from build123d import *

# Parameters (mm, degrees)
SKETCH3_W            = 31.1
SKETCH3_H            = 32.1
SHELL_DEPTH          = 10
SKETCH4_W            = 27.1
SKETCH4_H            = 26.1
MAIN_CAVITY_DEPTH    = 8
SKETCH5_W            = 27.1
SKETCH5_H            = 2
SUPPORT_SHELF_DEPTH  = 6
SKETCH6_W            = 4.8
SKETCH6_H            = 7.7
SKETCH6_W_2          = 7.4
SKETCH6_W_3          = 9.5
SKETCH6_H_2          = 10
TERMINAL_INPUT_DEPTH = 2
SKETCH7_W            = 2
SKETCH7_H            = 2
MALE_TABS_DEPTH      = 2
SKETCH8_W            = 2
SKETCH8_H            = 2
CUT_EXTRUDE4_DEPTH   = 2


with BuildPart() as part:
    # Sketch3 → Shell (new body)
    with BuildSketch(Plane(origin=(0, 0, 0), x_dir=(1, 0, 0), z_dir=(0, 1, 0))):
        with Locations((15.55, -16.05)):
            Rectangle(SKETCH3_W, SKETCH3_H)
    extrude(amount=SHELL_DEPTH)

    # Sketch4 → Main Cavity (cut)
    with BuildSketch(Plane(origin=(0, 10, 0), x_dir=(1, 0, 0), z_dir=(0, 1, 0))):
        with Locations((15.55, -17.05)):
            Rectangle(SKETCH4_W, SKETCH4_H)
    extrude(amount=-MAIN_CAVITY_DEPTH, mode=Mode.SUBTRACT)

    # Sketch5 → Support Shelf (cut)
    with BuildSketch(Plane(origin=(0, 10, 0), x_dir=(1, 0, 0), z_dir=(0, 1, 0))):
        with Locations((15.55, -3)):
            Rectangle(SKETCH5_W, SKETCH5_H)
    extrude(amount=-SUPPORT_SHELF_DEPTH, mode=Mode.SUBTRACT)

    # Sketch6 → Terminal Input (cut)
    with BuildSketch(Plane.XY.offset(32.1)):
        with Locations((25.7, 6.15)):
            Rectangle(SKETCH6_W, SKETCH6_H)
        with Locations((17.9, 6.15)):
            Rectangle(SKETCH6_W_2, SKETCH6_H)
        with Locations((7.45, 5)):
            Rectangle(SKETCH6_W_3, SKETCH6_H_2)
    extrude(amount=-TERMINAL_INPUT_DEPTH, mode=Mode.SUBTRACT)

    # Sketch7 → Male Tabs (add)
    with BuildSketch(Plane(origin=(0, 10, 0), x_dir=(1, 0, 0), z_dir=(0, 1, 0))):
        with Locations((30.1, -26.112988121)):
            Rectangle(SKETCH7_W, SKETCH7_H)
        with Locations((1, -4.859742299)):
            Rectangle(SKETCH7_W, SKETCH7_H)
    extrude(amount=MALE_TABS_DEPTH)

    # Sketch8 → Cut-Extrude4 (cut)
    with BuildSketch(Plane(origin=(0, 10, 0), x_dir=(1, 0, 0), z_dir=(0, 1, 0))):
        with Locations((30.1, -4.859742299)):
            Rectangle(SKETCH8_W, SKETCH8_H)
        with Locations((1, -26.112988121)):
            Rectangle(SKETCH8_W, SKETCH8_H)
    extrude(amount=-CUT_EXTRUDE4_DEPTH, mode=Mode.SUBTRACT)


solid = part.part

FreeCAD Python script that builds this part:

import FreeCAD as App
import Part
import Sketcher

V = App.Vector
Q = App.Units.Quantity


def add_polygon(sketch, points):
    """Adds a closed chain of lines whose ends are joined by coincident constraints."""
    first, n = sketch.GeometryCount, len(points)
    for a, b in zip(points, points[1:] + points[:1]):
        sketch.addGeometry(Part.LineSegment(App.Vector(*a, 0), App.Vector(*b, 0)), False)
    for i in range(n):
        sketch.addConstraint(Sketcher.Constraint("Coincident", first + i, 2, first + (i + 1) % n, 1))

doc = App.newDocument("Part")
body = doc.addObject("PartDesign::Body", "Body")

# Sketch on XZ plane
sketch1 = doc.addObject("Sketcher::SketchObject", "Sketch")
body.addObject(sketch1)
sketch1.AttachmentSupport = (doc.XZ_Plane, [""])
sketch1.MapMode = "FlatFace"
add_polygon(sketch1, [(0, 0), (0, 32.1), (31.1, 32.1), (31.1, 0)])  # lines 0-3
sketch1.addConstraint(Sketcher.Constraint("Vertical", 0))
sketch1.addConstraint(Sketcher.Constraint("Horizontal", 1))
sketch1.addConstraint(Sketcher.Constraint("Vertical", 2))
sketch1.addConstraint(Sketcher.Constraint("Horizontal", 3))
sketch1.addConstraint(Sketcher.Constraint("Coincident", 3, 2, -1, 1))
sketch1.addConstraint(Sketcher.Constraint("DistanceX", 1, 1, 1, 2, Q("31.1 mm")))
sketch1.addConstraint(Sketcher.Constraint("DistanceY", 0, 1, 0, 2, Q("32.1 mm")))
pad1 = doc.addObject("PartDesign::Pad", "Pad")
body.addObject(pad1)
pad1.Profile = sketch1
pad1.Length = 10
pad1.Reversed = True

# Sketch on XZ plane
sketch2 = doc.addObject("Sketcher::SketchObject", "Sketch001")
body.addObject(sketch2)
sketch2.AttachmentSupport = (doc.XZ_Plane, [""])
sketch2.MapMode = "FlatFace"
sketch2.AttachmentOffset = App.Placement(V(0, 0, -10), App.Rotation())
add_polygon(sketch2, [(2, 4), (2, 30.1), (29.1, 30.1), (29.1, 4)])  # lines 0-3
sketch2.addConstraint(Sketcher.Constraint("Vertical", 0))
sketch2.addConstraint(Sketcher.Constraint("Horizontal", 1))
sketch2.addConstraint(Sketcher.Constraint("Vertical", 2))
sketch2.addConstraint(Sketcher.Constraint("Horizontal", 3))
sketch2.addConstraint(Sketcher.Constraint("DistanceX", 1, 1, 1, 2, Q("27.1 mm")))
sketch2.addConstraint(Sketcher.Constraint("DistanceY", 0, 1, 0, 2, Q("26.1 mm")))
sketch2.addConstraint(Sketcher.Constraint("DistanceX", -1, 1, 0, 2, Q("2 mm")))
sketch2.addConstraint(Sketcher.Constraint("DistanceY", -1, 1, 2, 2, Q("4 mm")))
pocket1 = doc.addObject("PartDesign::Pocket", "Pocket")
body.addObject(pocket1)
pocket1.Profile = sketch2
pocket1.Length = 8
pocket1.Reversed = True

# Sketch on XZ plane
sketch3 = doc.addObject("Sketcher::SketchObject", "Sketch002")
body.addObject(sketch3)
sketch3.AttachmentSupport = (doc.XZ_Plane, [""])
sketch3.MapMode = "FlatFace"
sketch3.AttachmentOffset = App.Placement(V(0, 0, -10), App.Rotation())
add_polygon(sketch3, [(2, 2), (2, 4), (29.1, 4), (29.1, 2)])  # lines 0-3
sketch3.addConstraint(Sketcher.Constraint("Vertical", 0))
sketch3.addConstraint(Sketcher.Constraint("Horizontal", 1))
sketch3.addConstraint(Sketcher.Constraint("Vertical", 2))
sketch3.addConstraint(Sketcher.Constraint("Horizontal", 3))
sketch3.addConstraint(Sketcher.Constraint("DistanceY", 0, 1, 0, 2, Q("2 mm")))
sketch3.addConstraint(Sketcher.Constraint("DistanceX", 1, 1, 1, 2, Q("27.1 mm")))
sketch3.addConstraint(Sketcher.Constraint("DistanceX", -1, 1, 0, 2, Q("2 mm")))
sketch3.addConstraint(Sketcher.Constraint("DistanceY", -1, 1, 0, 2, Q("4 mm")))
pocket2 = doc.addObject("PartDesign::Pocket", "Pocket001")
body.addObject(pocket2)
pocket2.Profile = sketch3
pocket2.Length = 6
pocket2.Reversed = True

# Sketch on XY plane
sketch4 = doc.addObject("Sketcher::SketchObject", "Sketch003")
body.addObject(sketch4)
sketch4.AttachmentSupport = (doc.XY_Plane, [""])
sketch4.MapMode = "FlatFace"
sketch4.AttachmentOffset = App.Placement(V(0, 0, 32.1), App.Rotation())
add_polygon(sketch4, [(23.3, 10), (23.3, 2.3), (28.1, 2.3), (28.1, 10)])  # lines 0-3
add_polygon(sketch4, [(14.2, 10), (14.2, 2.3), (21.6, 2.3), (21.6, 10)])  # lines 4-7
add_polygon(sketch4, [(2.7, 10), (2.7, 0), (12.2, 0), (12.2, 10)])  # lines 8-11
sketch4.addConstraint(Sketcher.Constraint("Vertical", 0))
sketch4.addConstraint(Sketcher.Constraint("Horizontal", 1))
sketch4.addConstraint(Sketcher.Constraint("Vertical", 2))
sketch4.addConstraint(Sketcher.Constraint("Horizontal", 3))
sketch4.addConstraint(Sketcher.Constraint("Vertical", 4))
sketch4.addConstraint(Sketcher.Constraint("Horizontal", 5))
sketch4.addConstraint(Sketcher.Constraint("Vertical", 6))
sketch4.addConstraint(Sketcher.Constraint("Horizontal", 7))
sketch4.addConstraint(Sketcher.Constraint("Vertical", 8))
sketch4.addConstraint(Sketcher.Constraint("Horizontal", 9))
sketch4.addConstraint(Sketcher.Constraint("Vertical", 10))
sketch4.addConstraint(Sketcher.Constraint("Horizontal", 11))
sketch4.addConstraint(Sketcher.Constraint("PointOnObject", 8, 2, -1))
sketch4.addConstraint(Sketcher.Constraint("Horizontal", 1, 2, 4, 2))
sketch4.addConstraint(Sketcher.Constraint("Horizontal", 3, 2, 6, 2))
sketch4.addConstraint(Sketcher.Constraint("Horizontal", 7, 2, 10, 2))
sketch4.addConstraint(Sketcher.Constraint("DistanceY", 8, 2, 8, 1, Q("10 mm")))
sketch4.addConstraint(Sketcher.Constraint("DistanceX", 1, 1, 1, 2, Q("4.8 mm")))
sketch4.addConstraint(Sketcher.Constraint("DistanceX", 5, 1, 5, 2, Q("7.4 mm")))
sketch4.addConstraint(Sketcher.Constraint("DistanceX", 9, 1, 9, 2, Q("9.5 mm")))
sketch4.addConstraint(Sketcher.Constraint("DistanceY", 0, 2, 0, 1, Q("7.7 mm")))
sketch4.addConstraint(Sketcher.Constraint("DistanceX", 9, 2, 4, 2, Q("2 mm")))
sketch4.addConstraint(Sketcher.Constraint("DistanceX", -1, 1, 0, 2, Q("23.3 mm")))
sketch4.addConstraint(Sketcher.Constraint("DistanceX", -1, 1, 4, 2, Q("14.2 mm")))
pocket3 = doc.addObject("PartDesign::Pocket", "Pocket002")
body.addObject(pocket3)
pocket3.Profile = sketch4
pocket3.Length = 2

# Sketch on XZ plane
sketch5 = doc.addObject("Sketcher::SketchObject", "Sketch004")
body.addObject(sketch5)
sketch5.AttachmentSupport = (doc.XZ_Plane, [""])
sketch5.MapMode = "FlatFace"
sketch5.AttachmentOffset = App.Placement(V(0, 0, -10), App.Rotation())
add_polygon(sketch5, [(29.1, 25.112988), (29.1, 27.112988), (31.1, 27.112988), (31.1, 25.112988)])  # lines 0-3
add_polygon(sketch5, [(0, 3.859742), (0, 5.859742), (2, 5.859742), (2, 3.859742)])  # lines 4-7
sketch5.addConstraint(Sketcher.Constraint("Vertical", 0))
sketch5.addConstraint(Sketcher.Constraint("Horizontal", 1))
sketch5.addConstraint(Sketcher.Constraint("Vertical", 2))
sketch5.addConstraint(Sketcher.Constraint("Horizontal", 3))
sketch5.addConstraint(Sketcher.Constraint("Vertical", 4))
sketch5.addConstraint(Sketcher.Constraint("Horizontal", 5))
sketch5.addConstraint(Sketcher.Constraint("Vertical", 6))
sketch5.addConstraint(Sketcher.Constraint("Horizontal", 7))
sketch5.addConstraint(Sketcher.Constraint("PointOnObject", 4, 2, -2))
sketch5.addConstraint(Sketcher.Constraint("Equal", 3, 5))
sketch5.addConstraint(Sketcher.Constraint("Equal", 7, 0))
sketch5.addConstraint(Sketcher.Constraint("Equal", 2, 4))
sketch5.addConstraint(Sketcher.Constraint("DistanceX", 1, 1, 1, 2, Q("2 mm")))
sketch5.addConstraint(Sketcher.Constraint("DistanceX", -1, 1, 0, 2, Q("29.1 mm")))
sketch5.addConstraint(Sketcher.Constraint("DistanceY", -1, 1, 0, 2, Q("27.112988 mm")))
sketch5.addConstraint(Sketcher.Constraint("DistanceY", -1, 1, 4, 2, Q("5.859742 mm")))
pad2 = doc.addObject("PartDesign::Pad", "Pad001")
body.addObject(pad2)
pad2.Profile = sketch5
pad2.Length = 2
pad2.Reversed = True

# Sketch on XZ plane
sketch6 = doc.addObject("Sketcher::SketchObject", "Sketch005")
body.addObject(sketch6)
sketch6.AttachmentSupport = (doc.XZ_Plane, [""])
sketch6.MapMode = "FlatFace"
sketch6.AttachmentOffset = App.Placement(V(0, 0, -10), App.Rotation())
add_polygon(sketch6, [(29.1, 3.859742), (29.1, 5.859742), (31.1, 5.859742), (31.1, 3.859742)])  # lines 0-3
add_polygon(sketch6, [(0, 25.112988), (0, 27.112988), (2, 27.112988), (2, 25.112988)])  # lines 4-7
sketch6.addConstraint(Sketcher.Constraint("Vertical", 0))
sketch6.addConstraint(Sketcher.Constraint("Horizontal", 1))
sketch6.addConstraint(Sketcher.Constraint("Vertical", 2))
sketch6.addConstraint(Sketcher.Constraint("Horizontal", 3))
sketch6.addConstraint(Sketcher.Constraint("Vertical", 4))
sketch6.addConstraint(Sketcher.Constraint("Horizontal", 5))
sketch6.addConstraint(Sketcher.Constraint("Vertical", 6))
sketch6.addConstraint(Sketcher.Constraint("Horizontal", 7))
sketch6.addConstraint(Sketcher.Constraint("PointOnObject", 4, 2, -2))
sketch6.addConstraint(Sketcher.Constraint("Equal", 3, 5))
sketch6.addConstraint(Sketcher.Constraint("Equal", 7, 0))
sketch6.addConstraint(Sketcher.Constraint("Equal", 2, 4))
sketch6.addConstraint(Sketcher.Constraint("DistanceX", 1, 1, 1, 2, Q("2 mm")))
sketch6.addConstraint(Sketcher.Constraint("DistanceX", -1, 1, 0, 2, Q("29.1 mm")))
sketch6.addConstraint(Sketcher.Constraint("DistanceY", -1, 1, 4, 2, Q("27.112988 mm")))
sketch6.addConstraint(Sketcher.Constraint("DistanceY", -1, 1, 0, 2, Q("5.859742 mm")))
pocket4 = doc.addObject("PartDesign::Pocket", "Pocket003")
body.addObject(pocket4)
pocket4.Profile = sketch6
pocket4.Length = 2
pocket4.Reversed = True

doc.recompute()
